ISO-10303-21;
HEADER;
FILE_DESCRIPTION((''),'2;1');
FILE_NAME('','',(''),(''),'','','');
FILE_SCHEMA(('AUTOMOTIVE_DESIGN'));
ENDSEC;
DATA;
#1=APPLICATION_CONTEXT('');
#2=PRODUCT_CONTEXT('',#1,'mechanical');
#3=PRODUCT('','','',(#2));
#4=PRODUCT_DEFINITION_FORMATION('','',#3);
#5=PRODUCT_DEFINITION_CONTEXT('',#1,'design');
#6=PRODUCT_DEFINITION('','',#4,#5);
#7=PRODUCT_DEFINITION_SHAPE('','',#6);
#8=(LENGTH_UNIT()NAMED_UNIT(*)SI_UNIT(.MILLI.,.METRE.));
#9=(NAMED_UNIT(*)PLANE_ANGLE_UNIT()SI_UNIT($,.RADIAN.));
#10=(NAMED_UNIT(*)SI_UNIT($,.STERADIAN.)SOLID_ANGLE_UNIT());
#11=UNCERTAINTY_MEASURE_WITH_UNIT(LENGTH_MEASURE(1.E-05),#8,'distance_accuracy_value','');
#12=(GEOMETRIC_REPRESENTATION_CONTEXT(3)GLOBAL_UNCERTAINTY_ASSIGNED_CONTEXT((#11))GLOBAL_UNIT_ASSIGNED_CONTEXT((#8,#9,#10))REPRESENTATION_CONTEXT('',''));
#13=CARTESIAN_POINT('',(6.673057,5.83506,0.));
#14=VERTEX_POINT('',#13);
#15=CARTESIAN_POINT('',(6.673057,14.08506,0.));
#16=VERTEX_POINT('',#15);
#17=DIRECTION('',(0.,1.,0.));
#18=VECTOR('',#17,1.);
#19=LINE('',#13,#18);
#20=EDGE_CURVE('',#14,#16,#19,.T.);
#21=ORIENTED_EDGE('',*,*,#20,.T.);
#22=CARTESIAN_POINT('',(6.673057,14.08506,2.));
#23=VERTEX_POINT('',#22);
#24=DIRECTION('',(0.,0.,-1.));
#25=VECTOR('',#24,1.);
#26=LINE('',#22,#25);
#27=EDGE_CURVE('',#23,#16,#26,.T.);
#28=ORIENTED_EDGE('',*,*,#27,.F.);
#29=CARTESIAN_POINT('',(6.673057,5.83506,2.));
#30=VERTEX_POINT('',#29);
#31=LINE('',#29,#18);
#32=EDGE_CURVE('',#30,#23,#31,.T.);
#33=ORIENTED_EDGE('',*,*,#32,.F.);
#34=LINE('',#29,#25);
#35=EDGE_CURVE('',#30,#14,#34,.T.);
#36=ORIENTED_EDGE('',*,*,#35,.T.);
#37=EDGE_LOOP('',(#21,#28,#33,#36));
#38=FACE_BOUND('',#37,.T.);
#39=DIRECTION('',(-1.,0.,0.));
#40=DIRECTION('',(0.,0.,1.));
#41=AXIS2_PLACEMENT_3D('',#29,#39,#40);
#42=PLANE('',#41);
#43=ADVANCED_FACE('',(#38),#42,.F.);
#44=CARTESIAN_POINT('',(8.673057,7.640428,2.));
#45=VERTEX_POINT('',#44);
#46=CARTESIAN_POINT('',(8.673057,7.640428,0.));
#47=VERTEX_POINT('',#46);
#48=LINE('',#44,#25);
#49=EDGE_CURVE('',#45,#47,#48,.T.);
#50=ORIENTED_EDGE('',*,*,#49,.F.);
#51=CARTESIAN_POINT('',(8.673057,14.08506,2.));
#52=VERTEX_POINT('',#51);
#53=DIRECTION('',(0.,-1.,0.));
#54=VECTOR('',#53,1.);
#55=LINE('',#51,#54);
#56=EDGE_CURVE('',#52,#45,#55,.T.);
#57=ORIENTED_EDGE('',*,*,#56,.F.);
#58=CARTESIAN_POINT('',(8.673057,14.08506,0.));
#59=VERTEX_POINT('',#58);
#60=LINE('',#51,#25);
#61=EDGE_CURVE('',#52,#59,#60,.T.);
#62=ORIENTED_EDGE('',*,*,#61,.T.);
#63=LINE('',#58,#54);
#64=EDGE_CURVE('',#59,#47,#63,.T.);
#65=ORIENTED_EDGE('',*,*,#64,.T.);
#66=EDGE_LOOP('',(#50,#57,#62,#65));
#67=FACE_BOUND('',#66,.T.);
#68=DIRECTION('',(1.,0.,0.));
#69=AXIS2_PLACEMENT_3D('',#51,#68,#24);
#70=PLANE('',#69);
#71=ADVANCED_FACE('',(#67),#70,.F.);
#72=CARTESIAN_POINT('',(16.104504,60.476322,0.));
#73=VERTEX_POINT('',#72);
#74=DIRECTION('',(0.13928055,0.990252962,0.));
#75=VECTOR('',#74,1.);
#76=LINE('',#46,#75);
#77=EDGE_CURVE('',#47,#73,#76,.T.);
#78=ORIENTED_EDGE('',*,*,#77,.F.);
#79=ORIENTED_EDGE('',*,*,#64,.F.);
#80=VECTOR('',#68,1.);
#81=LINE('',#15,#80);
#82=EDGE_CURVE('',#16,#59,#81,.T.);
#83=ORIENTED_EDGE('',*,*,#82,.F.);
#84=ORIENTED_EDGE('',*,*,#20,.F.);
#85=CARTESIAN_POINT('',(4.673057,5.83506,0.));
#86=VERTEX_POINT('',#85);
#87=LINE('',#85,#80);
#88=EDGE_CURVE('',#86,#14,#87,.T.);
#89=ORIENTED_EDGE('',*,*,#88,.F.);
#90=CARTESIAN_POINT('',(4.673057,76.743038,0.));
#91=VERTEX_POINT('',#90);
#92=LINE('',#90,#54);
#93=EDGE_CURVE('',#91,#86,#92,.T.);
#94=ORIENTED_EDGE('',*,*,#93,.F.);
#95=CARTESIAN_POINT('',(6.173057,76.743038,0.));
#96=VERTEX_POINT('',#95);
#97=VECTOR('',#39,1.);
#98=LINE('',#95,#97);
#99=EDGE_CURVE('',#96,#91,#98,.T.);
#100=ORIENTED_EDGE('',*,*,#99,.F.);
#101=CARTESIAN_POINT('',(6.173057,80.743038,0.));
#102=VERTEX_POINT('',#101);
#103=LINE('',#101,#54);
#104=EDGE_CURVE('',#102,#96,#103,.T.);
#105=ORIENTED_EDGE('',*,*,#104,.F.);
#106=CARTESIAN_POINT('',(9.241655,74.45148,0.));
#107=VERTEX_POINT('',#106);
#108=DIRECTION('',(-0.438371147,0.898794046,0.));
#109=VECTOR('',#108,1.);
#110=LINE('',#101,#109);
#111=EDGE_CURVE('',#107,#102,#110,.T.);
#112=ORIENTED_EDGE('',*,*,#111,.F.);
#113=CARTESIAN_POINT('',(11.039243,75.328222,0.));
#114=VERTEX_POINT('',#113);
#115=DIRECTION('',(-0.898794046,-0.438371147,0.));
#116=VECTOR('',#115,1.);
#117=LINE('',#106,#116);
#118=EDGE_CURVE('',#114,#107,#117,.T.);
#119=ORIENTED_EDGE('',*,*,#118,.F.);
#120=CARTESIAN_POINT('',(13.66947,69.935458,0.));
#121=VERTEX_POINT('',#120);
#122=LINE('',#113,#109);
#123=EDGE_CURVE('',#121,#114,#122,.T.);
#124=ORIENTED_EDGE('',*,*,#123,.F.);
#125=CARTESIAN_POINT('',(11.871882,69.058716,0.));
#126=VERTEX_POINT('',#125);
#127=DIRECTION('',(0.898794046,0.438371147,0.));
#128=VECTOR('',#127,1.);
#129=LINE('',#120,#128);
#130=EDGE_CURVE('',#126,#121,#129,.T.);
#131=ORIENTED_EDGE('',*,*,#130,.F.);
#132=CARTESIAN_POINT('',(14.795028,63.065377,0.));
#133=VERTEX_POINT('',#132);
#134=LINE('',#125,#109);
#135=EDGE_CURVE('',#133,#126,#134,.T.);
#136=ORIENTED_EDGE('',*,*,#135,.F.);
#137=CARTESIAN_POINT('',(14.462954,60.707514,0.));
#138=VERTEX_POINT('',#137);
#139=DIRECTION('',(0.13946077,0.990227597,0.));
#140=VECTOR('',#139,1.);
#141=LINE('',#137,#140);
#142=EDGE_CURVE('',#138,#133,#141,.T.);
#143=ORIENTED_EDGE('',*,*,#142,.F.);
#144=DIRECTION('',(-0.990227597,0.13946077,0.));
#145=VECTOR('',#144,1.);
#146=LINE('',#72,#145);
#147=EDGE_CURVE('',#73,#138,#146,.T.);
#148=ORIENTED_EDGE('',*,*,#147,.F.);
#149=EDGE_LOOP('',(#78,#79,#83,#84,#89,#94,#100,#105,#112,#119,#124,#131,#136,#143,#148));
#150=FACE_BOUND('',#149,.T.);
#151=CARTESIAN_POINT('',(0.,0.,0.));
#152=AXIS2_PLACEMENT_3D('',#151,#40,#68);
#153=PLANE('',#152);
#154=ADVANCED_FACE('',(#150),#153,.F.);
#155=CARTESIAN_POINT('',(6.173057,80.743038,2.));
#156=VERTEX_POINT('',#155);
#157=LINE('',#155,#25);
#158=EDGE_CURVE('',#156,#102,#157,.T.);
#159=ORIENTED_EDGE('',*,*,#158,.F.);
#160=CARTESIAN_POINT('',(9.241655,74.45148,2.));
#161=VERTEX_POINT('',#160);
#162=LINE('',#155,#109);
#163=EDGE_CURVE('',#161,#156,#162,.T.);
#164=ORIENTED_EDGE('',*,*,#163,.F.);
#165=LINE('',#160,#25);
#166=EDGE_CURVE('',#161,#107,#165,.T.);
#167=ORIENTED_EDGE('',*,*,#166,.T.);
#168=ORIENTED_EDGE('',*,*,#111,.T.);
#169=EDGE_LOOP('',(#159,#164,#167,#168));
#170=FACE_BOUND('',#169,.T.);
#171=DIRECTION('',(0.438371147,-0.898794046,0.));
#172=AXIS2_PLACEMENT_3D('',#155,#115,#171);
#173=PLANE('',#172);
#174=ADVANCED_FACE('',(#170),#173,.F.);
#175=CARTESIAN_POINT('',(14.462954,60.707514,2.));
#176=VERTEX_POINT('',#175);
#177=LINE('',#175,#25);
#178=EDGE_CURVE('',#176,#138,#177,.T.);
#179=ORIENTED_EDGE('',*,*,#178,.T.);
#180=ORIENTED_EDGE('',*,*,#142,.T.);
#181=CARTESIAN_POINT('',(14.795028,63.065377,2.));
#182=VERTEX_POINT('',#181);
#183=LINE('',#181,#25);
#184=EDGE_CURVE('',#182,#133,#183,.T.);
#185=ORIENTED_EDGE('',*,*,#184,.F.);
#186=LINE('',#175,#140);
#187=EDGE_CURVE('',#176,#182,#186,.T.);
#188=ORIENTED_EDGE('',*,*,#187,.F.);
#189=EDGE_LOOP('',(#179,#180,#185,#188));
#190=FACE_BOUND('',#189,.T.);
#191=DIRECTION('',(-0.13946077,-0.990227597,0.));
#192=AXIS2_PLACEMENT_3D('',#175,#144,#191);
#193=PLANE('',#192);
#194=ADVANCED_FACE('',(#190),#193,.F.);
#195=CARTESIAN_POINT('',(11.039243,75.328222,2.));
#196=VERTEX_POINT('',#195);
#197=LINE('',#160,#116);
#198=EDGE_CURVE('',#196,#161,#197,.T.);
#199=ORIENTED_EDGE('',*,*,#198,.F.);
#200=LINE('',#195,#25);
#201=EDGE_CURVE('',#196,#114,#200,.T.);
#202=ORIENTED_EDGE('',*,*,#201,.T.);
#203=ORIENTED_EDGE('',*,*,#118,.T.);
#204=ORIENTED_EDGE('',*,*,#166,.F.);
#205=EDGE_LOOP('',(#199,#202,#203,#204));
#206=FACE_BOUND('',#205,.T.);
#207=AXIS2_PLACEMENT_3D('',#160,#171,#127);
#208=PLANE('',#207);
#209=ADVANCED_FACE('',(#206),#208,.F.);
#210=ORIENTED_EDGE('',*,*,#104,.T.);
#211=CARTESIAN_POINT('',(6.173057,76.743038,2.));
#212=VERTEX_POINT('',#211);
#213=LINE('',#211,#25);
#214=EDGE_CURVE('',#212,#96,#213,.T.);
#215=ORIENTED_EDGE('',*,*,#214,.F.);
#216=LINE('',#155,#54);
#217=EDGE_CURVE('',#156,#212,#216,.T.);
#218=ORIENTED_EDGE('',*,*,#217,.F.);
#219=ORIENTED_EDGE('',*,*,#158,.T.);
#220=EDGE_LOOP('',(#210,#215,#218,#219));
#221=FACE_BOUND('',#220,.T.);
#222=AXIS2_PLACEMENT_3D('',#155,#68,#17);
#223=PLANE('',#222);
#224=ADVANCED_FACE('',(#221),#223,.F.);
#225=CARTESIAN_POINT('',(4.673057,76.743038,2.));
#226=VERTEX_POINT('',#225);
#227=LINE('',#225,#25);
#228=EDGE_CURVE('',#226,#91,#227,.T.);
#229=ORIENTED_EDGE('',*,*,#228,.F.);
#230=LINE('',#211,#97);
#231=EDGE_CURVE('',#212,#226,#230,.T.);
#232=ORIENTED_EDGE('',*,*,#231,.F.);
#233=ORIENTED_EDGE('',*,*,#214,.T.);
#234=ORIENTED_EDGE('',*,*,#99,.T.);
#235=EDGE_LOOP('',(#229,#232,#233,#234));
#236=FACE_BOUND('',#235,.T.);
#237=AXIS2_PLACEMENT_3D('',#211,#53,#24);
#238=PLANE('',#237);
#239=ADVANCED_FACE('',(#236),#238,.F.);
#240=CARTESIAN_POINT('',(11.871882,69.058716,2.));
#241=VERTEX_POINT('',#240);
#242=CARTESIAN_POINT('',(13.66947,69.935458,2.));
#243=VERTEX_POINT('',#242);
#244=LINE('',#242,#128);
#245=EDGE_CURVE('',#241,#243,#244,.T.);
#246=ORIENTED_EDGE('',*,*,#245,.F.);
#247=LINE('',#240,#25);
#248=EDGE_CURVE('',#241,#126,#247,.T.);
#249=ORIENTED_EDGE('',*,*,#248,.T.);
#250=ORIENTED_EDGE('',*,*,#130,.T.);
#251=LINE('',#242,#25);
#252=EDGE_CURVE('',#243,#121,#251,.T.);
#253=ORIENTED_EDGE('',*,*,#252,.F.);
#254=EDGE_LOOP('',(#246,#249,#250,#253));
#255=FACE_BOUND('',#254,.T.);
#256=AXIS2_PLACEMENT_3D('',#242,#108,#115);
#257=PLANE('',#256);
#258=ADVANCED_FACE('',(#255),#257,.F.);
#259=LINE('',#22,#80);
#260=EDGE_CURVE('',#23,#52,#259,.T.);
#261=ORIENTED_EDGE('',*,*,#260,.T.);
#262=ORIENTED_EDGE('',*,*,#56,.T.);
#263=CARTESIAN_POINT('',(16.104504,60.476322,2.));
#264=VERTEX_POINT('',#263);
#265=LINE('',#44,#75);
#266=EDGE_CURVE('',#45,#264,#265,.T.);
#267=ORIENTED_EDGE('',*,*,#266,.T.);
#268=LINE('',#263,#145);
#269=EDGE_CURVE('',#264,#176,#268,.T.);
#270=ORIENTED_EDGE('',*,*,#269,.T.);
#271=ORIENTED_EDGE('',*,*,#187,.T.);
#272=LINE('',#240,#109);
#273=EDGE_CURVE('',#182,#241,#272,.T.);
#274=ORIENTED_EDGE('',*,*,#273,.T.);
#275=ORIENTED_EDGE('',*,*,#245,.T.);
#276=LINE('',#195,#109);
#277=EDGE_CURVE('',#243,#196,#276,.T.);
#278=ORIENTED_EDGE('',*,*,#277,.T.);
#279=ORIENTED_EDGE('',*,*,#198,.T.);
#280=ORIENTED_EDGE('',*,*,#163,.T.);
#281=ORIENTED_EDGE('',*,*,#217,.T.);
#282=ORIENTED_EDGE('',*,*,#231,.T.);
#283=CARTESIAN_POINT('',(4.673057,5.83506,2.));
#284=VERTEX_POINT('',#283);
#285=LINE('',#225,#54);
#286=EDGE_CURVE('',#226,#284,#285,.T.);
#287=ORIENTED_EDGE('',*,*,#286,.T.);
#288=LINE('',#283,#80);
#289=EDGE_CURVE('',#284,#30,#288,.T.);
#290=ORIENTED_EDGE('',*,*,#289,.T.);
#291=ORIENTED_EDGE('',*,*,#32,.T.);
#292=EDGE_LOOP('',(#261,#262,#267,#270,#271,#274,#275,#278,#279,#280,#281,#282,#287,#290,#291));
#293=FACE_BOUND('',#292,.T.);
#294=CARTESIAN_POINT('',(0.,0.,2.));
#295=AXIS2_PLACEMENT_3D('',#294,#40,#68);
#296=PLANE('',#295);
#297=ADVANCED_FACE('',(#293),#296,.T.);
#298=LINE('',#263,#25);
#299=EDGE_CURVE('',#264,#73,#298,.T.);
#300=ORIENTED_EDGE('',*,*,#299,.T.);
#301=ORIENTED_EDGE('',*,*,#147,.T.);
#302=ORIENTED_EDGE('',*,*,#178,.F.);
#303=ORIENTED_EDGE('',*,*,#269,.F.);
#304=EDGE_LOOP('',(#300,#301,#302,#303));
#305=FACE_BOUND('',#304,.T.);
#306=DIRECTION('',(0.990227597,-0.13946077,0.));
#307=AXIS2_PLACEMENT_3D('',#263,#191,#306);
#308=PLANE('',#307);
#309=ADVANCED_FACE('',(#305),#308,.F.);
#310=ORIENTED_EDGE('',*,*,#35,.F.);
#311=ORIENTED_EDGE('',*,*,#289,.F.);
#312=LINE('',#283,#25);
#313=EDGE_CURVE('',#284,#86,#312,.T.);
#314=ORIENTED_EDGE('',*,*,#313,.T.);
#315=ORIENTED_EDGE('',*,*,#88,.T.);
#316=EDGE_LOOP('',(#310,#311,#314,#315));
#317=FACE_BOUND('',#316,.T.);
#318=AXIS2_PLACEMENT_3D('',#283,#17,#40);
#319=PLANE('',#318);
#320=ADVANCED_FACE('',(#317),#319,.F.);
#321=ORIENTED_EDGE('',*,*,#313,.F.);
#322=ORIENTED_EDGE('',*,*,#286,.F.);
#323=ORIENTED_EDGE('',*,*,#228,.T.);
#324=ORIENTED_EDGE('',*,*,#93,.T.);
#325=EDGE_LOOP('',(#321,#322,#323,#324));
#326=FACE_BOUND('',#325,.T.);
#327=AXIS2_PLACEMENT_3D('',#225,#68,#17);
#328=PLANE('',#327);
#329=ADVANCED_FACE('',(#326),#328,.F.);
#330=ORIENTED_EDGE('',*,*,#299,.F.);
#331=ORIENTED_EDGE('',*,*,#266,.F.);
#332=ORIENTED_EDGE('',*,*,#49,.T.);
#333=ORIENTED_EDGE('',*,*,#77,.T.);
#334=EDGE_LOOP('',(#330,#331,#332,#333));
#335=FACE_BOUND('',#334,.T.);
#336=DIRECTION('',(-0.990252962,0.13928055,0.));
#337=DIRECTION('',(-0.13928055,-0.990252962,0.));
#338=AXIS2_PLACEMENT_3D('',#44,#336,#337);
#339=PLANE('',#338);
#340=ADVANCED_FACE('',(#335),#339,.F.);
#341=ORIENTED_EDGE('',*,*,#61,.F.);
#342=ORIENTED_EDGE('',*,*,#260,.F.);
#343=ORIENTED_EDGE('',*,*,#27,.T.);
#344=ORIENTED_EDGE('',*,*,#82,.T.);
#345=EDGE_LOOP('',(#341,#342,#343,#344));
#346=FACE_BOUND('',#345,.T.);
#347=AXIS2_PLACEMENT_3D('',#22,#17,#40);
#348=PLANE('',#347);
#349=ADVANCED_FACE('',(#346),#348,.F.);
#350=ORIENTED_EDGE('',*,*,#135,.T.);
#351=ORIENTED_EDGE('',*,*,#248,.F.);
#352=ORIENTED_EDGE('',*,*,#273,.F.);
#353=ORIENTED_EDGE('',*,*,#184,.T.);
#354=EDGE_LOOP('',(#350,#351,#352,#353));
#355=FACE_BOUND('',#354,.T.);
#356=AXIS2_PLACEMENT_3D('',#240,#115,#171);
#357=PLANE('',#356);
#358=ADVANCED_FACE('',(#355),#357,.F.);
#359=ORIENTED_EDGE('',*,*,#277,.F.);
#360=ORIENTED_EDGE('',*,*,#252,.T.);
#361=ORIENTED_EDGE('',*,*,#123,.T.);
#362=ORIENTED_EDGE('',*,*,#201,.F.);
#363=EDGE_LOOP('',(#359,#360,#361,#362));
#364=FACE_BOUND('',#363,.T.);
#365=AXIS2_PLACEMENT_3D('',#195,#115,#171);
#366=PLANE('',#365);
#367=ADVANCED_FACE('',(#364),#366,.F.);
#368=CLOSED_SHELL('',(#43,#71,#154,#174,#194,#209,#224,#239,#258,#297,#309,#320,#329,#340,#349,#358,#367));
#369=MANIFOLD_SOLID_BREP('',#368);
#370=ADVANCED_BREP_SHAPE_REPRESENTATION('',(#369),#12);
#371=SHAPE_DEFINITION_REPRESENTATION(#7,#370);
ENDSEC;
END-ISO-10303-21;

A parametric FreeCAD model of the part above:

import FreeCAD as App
import Part
import Sketcher
from FreeCAD import Vector
Q = App.Units.Quantity


def add_polygon(sketch, points):
    """Adds a closed chain of lines whose ends are joined by coincident constraints."""
    first, n = sketch.GeometryCount, len(points)
    for a, b in zip(points, points[1:] + points[:1]):
        sketch.addGeometry(Part.LineSegment(App.Vector(*a, 0), App.Vector(*b, 0)), False)
    for i in range(n):
        sketch.addConstraint(Sketcher.Constraint("Coincident", first + i, 2, first + (i + 1) % n, 1))

doc = App.newDocument("Part")
body = doc.addObject("PartDesign::Body", "Body")

sketch1 = doc.addObject("Sketcher::SketchObject", "Sketch")
body.addObject(sketch1)
sketch1.AttachmentSupport = (doc.XY_Plane, [""])
sketch1.MapMode = "FlatFace"
add_polygon(sketch1, [(6.2, 80.7), (6.2, 76.7), (4.7, 76.7), (4.7, 5.8), (6.7, 5.8), (6.7, 14.1), (8.7, 14.1), (8.7, 7.6), (16.1, 60.5), (14.5, 60.7), (14.8, 63.1), (11.9, 69.1), (13.7, 69.9), (11, 75.3), (9.2, 74.5)])
sketch1.addConstraint(Sketcher.Constraint("Vertical", 0))
sketch1.addConstraint(Sketcher.Constraint("Horizontal", 1))
sketch1.addConstraint(Sketcher.Constraint("Vertical", 2))
sketch1.addConstraint(Sketcher.Constraint("Horizontal", 3))
sketch1.addConstraint(Sketcher.Constraint("Vertical", 4))
sketch1.addConstraint(Sketcher.Constraint("Horizontal", 5))
sketch1.addConstraint(Sketcher.Constraint("Vertical", 6))
sketch1.addConstraint(Sketcher.Constraint("Perpendicular", 8, 9))
sketch1.addConstraint(Sketcher.Constraint("Perpendicular", 10, 11))
sketch1.addConstraint(Sketcher.Constraint("Perpendicular", 11, 12))
sketch1.addConstraint(Sketcher.Constraint("Perpendicular", 12, 13))
sketch1.addConstraint(Sketcher.Constraint("Perpendicular", 13, 14))
sketch1.addConstraint(Sketcher.Constraint("Equal", 3, 5))
sketch1.addConstraint(Sketcher.Constraint("Equal", 11, 13))
sketch1.addConstraint(Sketcher.Constraint("DistanceX", 3, 1, 3, 2, 2.0))
sketch1.addConstraint(Sketcher.Constraint("DistanceY", 0, 2, 0, 1, 4.0))
sketch1.addConstraint(Sketcher.Constraint("Angle", 10, Q("116 deg")))
sketch1.addConstraint(Sketcher.Constraint("Distance", 11, 2.0))
sketch1.addConstraint(Sketcher.Constraint("Distance", 12, 6.0))
sketch1.addConstraint(Sketcher.Constraint("Distance", 14, 7.0))
sketch1.addConstraint(Sketcher.Constraint("DistanceX", 1, 2, 1, 1, 1.5))
sketch1.addConstraint(Sketcher.Constraint("DistanceY", 4, 1, 4, 2, 8.25))
sketch1.addConstraint(Sketcher.Constraint("Distance", 10, 6.668201))
sketch1.addConstraint(Sketcher.Constraint("DistanceY", 2, 2, 2, 1, 70.907978))
sketch1.addConstraint(Sketcher.Constraint("Distance", 8, 1.65775))
sketch1.addConstraint(Sketcher.Constraint("DistanceY", 6, 2, 6, 1, 6.444632))
sketch1.addConstraint(Sketcher.Constraint("DistanceY", -1, 1, 0, 2, 76.743038))
sketch1.addConstraint(Sketcher.Constraint("DistanceX", -1, 1, 9, 2, 14.795028))
sketch1.addConstraint(Sketcher.Constraint("DistanceX", 8, 2, 7, 2, 1.64155))
sketch1.addConstraint(Sketcher.Constraint("Distance", 7, 53.355957))
pad1 = doc.addObject("PartDesign::Pad", "Pad")
body.addObject(pad1)
pad1.Profile = sketch1
pad1.Length = 2

doc.recompute()
